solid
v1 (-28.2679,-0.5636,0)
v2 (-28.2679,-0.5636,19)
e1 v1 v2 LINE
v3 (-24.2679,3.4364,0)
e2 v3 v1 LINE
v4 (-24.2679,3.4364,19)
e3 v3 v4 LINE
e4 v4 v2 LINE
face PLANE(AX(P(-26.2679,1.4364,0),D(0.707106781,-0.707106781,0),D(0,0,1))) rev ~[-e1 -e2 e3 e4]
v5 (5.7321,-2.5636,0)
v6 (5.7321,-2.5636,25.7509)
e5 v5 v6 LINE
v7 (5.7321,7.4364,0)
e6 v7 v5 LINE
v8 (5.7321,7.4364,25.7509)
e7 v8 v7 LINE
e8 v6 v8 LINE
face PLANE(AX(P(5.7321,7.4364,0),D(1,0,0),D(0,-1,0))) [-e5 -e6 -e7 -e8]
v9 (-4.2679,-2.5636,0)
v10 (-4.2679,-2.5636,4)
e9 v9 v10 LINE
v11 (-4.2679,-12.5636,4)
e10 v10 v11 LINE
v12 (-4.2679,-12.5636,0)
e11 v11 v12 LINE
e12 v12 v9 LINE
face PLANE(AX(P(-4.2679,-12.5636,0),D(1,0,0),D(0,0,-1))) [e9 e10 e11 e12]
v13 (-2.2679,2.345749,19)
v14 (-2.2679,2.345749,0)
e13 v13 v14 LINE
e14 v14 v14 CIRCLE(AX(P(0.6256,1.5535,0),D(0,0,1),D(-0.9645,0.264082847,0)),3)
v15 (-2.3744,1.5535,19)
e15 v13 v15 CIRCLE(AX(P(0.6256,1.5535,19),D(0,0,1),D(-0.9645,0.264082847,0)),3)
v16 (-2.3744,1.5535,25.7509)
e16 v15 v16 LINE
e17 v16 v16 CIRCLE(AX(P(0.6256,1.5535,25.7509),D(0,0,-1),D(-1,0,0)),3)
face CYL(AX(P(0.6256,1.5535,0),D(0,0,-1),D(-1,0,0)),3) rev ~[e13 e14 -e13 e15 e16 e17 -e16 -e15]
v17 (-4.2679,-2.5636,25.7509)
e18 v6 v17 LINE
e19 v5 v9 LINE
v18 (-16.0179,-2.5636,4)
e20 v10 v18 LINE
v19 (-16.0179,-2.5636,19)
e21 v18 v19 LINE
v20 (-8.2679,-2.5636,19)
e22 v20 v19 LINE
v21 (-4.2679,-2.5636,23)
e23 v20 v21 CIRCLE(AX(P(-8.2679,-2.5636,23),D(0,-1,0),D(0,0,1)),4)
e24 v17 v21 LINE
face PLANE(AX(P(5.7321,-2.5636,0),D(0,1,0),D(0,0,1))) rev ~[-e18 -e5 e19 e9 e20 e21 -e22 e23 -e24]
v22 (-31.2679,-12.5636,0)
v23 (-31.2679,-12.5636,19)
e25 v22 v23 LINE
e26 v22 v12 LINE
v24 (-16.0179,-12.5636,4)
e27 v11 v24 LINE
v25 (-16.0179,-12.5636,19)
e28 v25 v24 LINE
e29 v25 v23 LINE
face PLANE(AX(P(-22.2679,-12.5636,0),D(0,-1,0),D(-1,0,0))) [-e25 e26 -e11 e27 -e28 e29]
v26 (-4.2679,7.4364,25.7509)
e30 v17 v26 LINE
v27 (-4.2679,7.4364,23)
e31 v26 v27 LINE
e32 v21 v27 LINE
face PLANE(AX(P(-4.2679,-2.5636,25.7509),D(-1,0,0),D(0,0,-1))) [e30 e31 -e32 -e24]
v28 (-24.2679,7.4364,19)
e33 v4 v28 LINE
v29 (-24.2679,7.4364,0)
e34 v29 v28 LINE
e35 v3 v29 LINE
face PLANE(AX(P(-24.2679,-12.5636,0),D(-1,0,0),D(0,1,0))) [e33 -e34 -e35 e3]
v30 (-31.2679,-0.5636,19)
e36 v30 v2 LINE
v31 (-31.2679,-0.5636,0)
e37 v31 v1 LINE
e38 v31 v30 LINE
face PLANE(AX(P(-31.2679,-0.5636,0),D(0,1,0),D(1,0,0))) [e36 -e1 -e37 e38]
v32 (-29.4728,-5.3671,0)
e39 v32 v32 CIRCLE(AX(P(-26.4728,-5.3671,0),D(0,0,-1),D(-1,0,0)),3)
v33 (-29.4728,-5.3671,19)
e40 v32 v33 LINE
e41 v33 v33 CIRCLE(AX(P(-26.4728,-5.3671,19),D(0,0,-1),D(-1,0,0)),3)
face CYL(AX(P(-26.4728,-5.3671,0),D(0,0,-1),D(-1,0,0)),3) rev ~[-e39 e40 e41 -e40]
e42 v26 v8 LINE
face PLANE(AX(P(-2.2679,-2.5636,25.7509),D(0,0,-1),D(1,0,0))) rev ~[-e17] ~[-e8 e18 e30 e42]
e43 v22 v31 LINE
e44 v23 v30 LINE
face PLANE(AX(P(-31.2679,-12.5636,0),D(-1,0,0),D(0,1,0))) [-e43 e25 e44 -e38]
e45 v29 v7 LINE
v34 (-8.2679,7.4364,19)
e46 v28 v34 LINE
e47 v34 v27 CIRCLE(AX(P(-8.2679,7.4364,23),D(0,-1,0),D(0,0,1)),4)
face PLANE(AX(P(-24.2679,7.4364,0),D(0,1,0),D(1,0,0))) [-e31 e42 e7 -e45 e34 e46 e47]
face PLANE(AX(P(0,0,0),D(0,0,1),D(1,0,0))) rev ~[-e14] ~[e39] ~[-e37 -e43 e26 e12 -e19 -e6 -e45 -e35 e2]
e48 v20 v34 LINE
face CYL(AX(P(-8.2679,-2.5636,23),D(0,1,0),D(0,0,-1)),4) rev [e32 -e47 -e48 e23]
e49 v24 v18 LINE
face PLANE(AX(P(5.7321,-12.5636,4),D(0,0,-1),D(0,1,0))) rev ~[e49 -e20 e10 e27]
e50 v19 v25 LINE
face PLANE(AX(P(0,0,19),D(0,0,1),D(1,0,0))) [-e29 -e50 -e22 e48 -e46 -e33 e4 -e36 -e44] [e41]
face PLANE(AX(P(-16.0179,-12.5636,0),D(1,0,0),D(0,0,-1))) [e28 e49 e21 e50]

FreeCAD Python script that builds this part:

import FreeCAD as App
import Part
import Sketcher
from FreeCAD import Vector


def edges_at(feature, points):
    """Names of the edges that pass closest to the given points."""
    edges = feature.Shape.Edges
    near = lambda p: min(range(len(edges)), key=lambda i: edges[i].distToShape(Part.Vertex(*p))[0])
    return sorted({f"Edge{near(p) + 1}" for p in points})


def add_polygon(sketch, points):
    """Adds a closed chain of lines whose ends are joined by coincident constraints."""
    first, n = sketch.GeometryCount, len(points)
    for a, b in zip(points, points[1:] + points[:1]):
        sketch.addGeometry(Part.LineSegment(App.Vector(*a, 0), App.Vector(*b, 0)), False)
    for i in range(n):
        sketch.addConstraint(Sketcher.Constraint("Coincident", first + i, 2, first + (i + 1) % n, 1))

doc = App.newDocument("Part")
body = doc.addObject("PartDesign::Body", "Body")

# Sketch on XY plane
sketch1 = doc.addObject("Sketcher::SketchObject", "Sketch")
body.addObject(sketch1)
sketch1.AttachmentSupport = (doc.XY_Plane, [""])
sketch1.MapMode = "FlatFace"
add_polygon(sketch1, [(-24, -13), (6, -13), (6, 7), (-24, 7)])  # lines 0-3
sketch1.addConstraint(Sketcher.Constraint("Horizontal", 0))
sketch1.addConstraint(Sketcher.Constraint("Vertical", 1))
sketch1.addConstraint(Sketcher.Constraint("Horizontal", 2))
sketch1.addConstraint(Sketcher.Constraint("Vertical", 3))
sketch1.addConstraint(Sketcher.Constraint("DistanceX", 0, 1, 0, 2, 30.0))
sketch1.addConstraint(Sketcher.Constraint("DistanceY", 1, 1, 1, 2, 20.0))
sketch1.addConstraint(Sketcher.Constraint("DistanceX", -1, 1, 0, 2, 5.732))
sketch1.addConstraint(Sketcher.Constraint("DistanceY", 0, 2, -1, 1, 12.5636))
pad1 = doc.addObject("PartDesign::Pad", "Pad")
body.addObject(pad1)
pad1.Profile = sketch1
pad1.Length = 19

# Sketch on XY plane
sketch2 = doc.addObject("Sketcher::SketchObject", "Sketch001")
body.addObject(sketch2)
sketch2.AttachmentSupport = (doc.XY_Plane, [""])
sketch2.MapMode = "FlatFace"
add_polygon(sketch2, [(-31, -1), (-24, -1), (-24, -13), (-31, -13)])  # lines 0-3
sketch2.addConstraint(Sketcher.Constraint("Horizontal", 0))
sketch2.addConstraint(Sketcher.Constraint("Vertical", 1))
sketch2.addConstraint(Sketcher.Constraint("Horizontal", 2))
sketch2.addConstraint(Sketcher.Constraint("Vertical", 3))
sketch2.addConstraint(Sketcher.Constraint("DistanceX", 0, 1, 0, 2, 7.0))
sketch2.addConstraint(Sketcher.Constraint("DistanceY", 1, 2, 1, 1, 12.0))
sketch2.addConstraint(Sketcher.Constraint("DistanceX", 0, 2, -1, 1, 24.268))
sketch2.addConstraint(Sketcher.Constraint("DistanceY", 0, 2, -1, 1, 0.5636))
pad2 = doc.addObject("PartDesign::Pad", "Pad001")
body.addObject(pad2)
pad2.Profile = sketch2
pad2.Length = 19

# Sketch on XY plane
sketch3 = doc.addObject("Sketcher::SketchObject", "Sketch002")
body.addObject(sketch3)
sketch3.AttachmentSupport = (doc.XY_Plane, [""])
sketch3.MapMode = "FlatFace"
sketch3.addGeometry(Part.Circle(Vector(0.6, 1.6, 0), Vector(0, 0, 1), 3), False)
sketch3.addGeometry(Part.Circle(Vector(-26.5, -5.4, 0), Vector(0, 0, 1), 3), False)
sketch3.addConstraint(Sketcher.Constraint("Equal", 0, 1))
sketch3.addConstraint(Sketcher.Constraint("Diameter", 0, 6.0))
sketch3.addConstraint(Sketcher.Constraint("DistanceY", 1, 3, -1, 1, 5.367))
sketch3.addConstraint(Sketcher.Constraint("DistanceX", -1, 1, 0, 3, 0.6256))
sketch3.addConstraint(Sketcher.Constraint("DistanceY", -1, 1, 0, 3, 1.5535))
sketch3.addConstraint(Sketcher.Constraint("DistanceX", 1, 3, -1, 1, 26.4728))
pocket1 = doc.addObject("PartDesign::Pocket", "Pocket")
body.addObject(pocket1)
pocket1.Profile = sketch3
pocket1.Length = 40
pocket1.Reversed = True

# Sketch on YZ plane
sketch4 = doc.addObject("Sketcher::SketchObject", "Sketch003")
body.addObject(sketch4)
sketch4.AttachmentSupport = (doc.YZ_Plane, [""])
sketch4.MapMode = "FlatFace"
sketch4.AttachmentOffset = App.Placement(Vector(0, 0, 5.7321), App.Rotation())
add_polygon(sketch4, [(-3, 19), (-13, 19), (-13, 4), (-3, 4)])  # lines 0-3
sketch4.addConstraint(Sketcher.Constraint("Horizontal", 0))
sketch4.addConstraint(Sketcher.Constraint("Vertical", 1))
sketch4.addConstraint(Sketcher.Constraint("Horizontal", 2))
sketch4.addConstraint(Sketcher.Constraint("Vertical", 3))
sketch4.addConstraint(Sketcher.Constraint("DistanceX", 0, 2, 0, 1, 10.0))
sketch4.addConstraint(Sketcher.Constraint("DistanceY", 1, 2, 1, 1, 15.0))
sketch4.addConstraint(Sketcher.Constraint("DistanceY", -1, 1, 0, 2, 19.0))
sketch4.addConstraint(Sketcher.Constraint("DistanceX", 0, 2, -1, 1, 12.5636))
pocket2 = doc.addObject("PartDesign::Pocket", "Pocket001")
body.addObject(pocket2)
pocket2.Profile = sketch4
pocket2.Length = 21.75
doc.recompute()

chamfer = doc.addObject("PartDesign::Chamfer", "Chamfer")
body.addObject(chamfer)
chamfer.Base = (pocket2, edges_at(pocket2, [(-24.268, -0.564, 9.5)]))
chamfer.Size = 4

# Sketch on YZ plane
sketch5 = doc.addObject("Sketcher::SketchObject", "Sketch004")
body.addObject(sketch5)
sketch5.AttachmentSupport = (doc.YZ_Plane, [""])
sketch5.MapMode = "FlatFace"
sketch5.AttachmentOffset = App.Placement(Vector(0, 0, 5.7321), App.Rotation())
add_polygon(sketch5, [(-2.6, 4), (-12.6, 4), (-12.6, 0), (-2.6, 0)])  # lines 0-3
sketch5.addConstraint(Sketcher.Constraint("Horizontal", 0))
sketch5.addConstraint(Sketcher.Constraint("Vertical", 1))
sketch5.addConstraint(Sketcher.Constraint("Horizontal", 2))
sketch5.addConstraint(Sketcher.Constraint("Vertical", 3))
sketch5.addConstraint(Sketcher.Constraint("PointOnObject", 1, 2, -1))
sketch5.addConstraint(Sketcher.Constraint("DistanceX", 0, 2, 0, 1, 10.0))
sketch5.addConstraint(Sketcher.Constraint("DistanceY", 1, 2, 1, 1, 4.0))
sketch5.addConstraint(Sketcher.Constraint("DistanceX", 0, 2, -1, 1, 12.5636))
pocket3 = doc.addObject("PartDesign::Pocket", "Pocket002")
body.addObject(pocket3)
pocket3.Profile = sketch5
pocket3.Length = 10

# Sketch on XZ plane
sketch6 = doc.addObject("Sketcher::SketchObject", "Sketch005")
body.addObject(sketch6)
sketch6.AttachmentSupport = (doc.XZ_Plane, [""])
sketch6.MapMode = "FlatFace"
sketch6.AttachmentOffset = App.Placement(Vector(0, 0, 2.5636), App.Rotation())
add_polygon(sketch6, [(-2.3, 0), (5.7, 0), (5.7, 25.8), (-4.3, 25.8), (-4.3, 19), (-2.3, 19)])  # lines 0-5
sketch6.addConstraint(Sketcher.Constraint("Horizontal", 0))
sketch6.addConstraint(Sketcher.Constraint("Vertical", 1))
sketch6.addConstraint(Sketcher.Constraint("Horizontal", 2))
sketch6.addConstraint(Sketcher.Constraint("Vertical", 3))
sketch6.addConstraint(Sketcher.Constraint("Horizontal", 4))
sketch6.addConstraint(Sketcher.Constraint("Vertical", 5))
sketch6.addConstraint(Sketcher.Constraint("PointOnObject", 0, 2, -1))
sketch6.addConstraint(Sketcher.Constraint("DistanceX", 0, 1, 0, 2, 8.0))
sketch6.addConstraint(Sketcher.Constraint("DistanceX", 2, 2, 2, 1, 10.0))
sketch6.addConstraint(Sketcher.Constraint("DistanceY", 5, 2, 5, 1, 19.0))
sketch6.addConstraint(Sketcher.Constraint("DistanceY", 1, 1, 1, 2, 25.751))
sketch6.addConstraint(Sketcher.Constraint("DistanceX", -1, 1, 0, 2, 5.732))
pad3 = doc.addObject("PartDesign::Pad", "Pad002")
body.addObject(pad3)
pad3.Profile = sketch6
pad3.Length = 10
pad3.Reversed = True

# Sketch on XY plane
sketch7 = doc.addObject("Sketcher::SketchObject", "Sketch006")
body.addObject(sketch7)
sketch7.AttachmentSupport = (doc.XY_Plane, [""])
sketch7.MapMode = "FlatFace"
sketch7.addGeometry(Part.Circle(Vector(0.6, 1.6, 0), Vector(0, 0, 1), 3), False)
sketch7.addConstraint(Sketcher.Constraint("Diameter", 0, 6.0))
sketch7.addConstraint(Sketcher.Constraint("DistanceX", -1, 1, 0, 3, 0.6256))
sketch7.addConstraint(Sketcher.Constraint("DistanceY", -1, 1, 0, 3, 1.5535))
pocket4 = doc.addObject("PartDesign::Pocket", "Pocket003")
body.addObject(pocket4)
pocket4.Profile = sketch7
pocket4.Length = 42.75
pocket4.Reversed = True
doc.recompute()

fillet = doc.addObject("PartDesign::Fillet", "Fillet")
body.addObject(fillet)
fillet.Base = (pocket4, edges_at(pocket4, [(-4.268, 2.436, 19)]))
fillet.Radius = 4

doc.recompute()
